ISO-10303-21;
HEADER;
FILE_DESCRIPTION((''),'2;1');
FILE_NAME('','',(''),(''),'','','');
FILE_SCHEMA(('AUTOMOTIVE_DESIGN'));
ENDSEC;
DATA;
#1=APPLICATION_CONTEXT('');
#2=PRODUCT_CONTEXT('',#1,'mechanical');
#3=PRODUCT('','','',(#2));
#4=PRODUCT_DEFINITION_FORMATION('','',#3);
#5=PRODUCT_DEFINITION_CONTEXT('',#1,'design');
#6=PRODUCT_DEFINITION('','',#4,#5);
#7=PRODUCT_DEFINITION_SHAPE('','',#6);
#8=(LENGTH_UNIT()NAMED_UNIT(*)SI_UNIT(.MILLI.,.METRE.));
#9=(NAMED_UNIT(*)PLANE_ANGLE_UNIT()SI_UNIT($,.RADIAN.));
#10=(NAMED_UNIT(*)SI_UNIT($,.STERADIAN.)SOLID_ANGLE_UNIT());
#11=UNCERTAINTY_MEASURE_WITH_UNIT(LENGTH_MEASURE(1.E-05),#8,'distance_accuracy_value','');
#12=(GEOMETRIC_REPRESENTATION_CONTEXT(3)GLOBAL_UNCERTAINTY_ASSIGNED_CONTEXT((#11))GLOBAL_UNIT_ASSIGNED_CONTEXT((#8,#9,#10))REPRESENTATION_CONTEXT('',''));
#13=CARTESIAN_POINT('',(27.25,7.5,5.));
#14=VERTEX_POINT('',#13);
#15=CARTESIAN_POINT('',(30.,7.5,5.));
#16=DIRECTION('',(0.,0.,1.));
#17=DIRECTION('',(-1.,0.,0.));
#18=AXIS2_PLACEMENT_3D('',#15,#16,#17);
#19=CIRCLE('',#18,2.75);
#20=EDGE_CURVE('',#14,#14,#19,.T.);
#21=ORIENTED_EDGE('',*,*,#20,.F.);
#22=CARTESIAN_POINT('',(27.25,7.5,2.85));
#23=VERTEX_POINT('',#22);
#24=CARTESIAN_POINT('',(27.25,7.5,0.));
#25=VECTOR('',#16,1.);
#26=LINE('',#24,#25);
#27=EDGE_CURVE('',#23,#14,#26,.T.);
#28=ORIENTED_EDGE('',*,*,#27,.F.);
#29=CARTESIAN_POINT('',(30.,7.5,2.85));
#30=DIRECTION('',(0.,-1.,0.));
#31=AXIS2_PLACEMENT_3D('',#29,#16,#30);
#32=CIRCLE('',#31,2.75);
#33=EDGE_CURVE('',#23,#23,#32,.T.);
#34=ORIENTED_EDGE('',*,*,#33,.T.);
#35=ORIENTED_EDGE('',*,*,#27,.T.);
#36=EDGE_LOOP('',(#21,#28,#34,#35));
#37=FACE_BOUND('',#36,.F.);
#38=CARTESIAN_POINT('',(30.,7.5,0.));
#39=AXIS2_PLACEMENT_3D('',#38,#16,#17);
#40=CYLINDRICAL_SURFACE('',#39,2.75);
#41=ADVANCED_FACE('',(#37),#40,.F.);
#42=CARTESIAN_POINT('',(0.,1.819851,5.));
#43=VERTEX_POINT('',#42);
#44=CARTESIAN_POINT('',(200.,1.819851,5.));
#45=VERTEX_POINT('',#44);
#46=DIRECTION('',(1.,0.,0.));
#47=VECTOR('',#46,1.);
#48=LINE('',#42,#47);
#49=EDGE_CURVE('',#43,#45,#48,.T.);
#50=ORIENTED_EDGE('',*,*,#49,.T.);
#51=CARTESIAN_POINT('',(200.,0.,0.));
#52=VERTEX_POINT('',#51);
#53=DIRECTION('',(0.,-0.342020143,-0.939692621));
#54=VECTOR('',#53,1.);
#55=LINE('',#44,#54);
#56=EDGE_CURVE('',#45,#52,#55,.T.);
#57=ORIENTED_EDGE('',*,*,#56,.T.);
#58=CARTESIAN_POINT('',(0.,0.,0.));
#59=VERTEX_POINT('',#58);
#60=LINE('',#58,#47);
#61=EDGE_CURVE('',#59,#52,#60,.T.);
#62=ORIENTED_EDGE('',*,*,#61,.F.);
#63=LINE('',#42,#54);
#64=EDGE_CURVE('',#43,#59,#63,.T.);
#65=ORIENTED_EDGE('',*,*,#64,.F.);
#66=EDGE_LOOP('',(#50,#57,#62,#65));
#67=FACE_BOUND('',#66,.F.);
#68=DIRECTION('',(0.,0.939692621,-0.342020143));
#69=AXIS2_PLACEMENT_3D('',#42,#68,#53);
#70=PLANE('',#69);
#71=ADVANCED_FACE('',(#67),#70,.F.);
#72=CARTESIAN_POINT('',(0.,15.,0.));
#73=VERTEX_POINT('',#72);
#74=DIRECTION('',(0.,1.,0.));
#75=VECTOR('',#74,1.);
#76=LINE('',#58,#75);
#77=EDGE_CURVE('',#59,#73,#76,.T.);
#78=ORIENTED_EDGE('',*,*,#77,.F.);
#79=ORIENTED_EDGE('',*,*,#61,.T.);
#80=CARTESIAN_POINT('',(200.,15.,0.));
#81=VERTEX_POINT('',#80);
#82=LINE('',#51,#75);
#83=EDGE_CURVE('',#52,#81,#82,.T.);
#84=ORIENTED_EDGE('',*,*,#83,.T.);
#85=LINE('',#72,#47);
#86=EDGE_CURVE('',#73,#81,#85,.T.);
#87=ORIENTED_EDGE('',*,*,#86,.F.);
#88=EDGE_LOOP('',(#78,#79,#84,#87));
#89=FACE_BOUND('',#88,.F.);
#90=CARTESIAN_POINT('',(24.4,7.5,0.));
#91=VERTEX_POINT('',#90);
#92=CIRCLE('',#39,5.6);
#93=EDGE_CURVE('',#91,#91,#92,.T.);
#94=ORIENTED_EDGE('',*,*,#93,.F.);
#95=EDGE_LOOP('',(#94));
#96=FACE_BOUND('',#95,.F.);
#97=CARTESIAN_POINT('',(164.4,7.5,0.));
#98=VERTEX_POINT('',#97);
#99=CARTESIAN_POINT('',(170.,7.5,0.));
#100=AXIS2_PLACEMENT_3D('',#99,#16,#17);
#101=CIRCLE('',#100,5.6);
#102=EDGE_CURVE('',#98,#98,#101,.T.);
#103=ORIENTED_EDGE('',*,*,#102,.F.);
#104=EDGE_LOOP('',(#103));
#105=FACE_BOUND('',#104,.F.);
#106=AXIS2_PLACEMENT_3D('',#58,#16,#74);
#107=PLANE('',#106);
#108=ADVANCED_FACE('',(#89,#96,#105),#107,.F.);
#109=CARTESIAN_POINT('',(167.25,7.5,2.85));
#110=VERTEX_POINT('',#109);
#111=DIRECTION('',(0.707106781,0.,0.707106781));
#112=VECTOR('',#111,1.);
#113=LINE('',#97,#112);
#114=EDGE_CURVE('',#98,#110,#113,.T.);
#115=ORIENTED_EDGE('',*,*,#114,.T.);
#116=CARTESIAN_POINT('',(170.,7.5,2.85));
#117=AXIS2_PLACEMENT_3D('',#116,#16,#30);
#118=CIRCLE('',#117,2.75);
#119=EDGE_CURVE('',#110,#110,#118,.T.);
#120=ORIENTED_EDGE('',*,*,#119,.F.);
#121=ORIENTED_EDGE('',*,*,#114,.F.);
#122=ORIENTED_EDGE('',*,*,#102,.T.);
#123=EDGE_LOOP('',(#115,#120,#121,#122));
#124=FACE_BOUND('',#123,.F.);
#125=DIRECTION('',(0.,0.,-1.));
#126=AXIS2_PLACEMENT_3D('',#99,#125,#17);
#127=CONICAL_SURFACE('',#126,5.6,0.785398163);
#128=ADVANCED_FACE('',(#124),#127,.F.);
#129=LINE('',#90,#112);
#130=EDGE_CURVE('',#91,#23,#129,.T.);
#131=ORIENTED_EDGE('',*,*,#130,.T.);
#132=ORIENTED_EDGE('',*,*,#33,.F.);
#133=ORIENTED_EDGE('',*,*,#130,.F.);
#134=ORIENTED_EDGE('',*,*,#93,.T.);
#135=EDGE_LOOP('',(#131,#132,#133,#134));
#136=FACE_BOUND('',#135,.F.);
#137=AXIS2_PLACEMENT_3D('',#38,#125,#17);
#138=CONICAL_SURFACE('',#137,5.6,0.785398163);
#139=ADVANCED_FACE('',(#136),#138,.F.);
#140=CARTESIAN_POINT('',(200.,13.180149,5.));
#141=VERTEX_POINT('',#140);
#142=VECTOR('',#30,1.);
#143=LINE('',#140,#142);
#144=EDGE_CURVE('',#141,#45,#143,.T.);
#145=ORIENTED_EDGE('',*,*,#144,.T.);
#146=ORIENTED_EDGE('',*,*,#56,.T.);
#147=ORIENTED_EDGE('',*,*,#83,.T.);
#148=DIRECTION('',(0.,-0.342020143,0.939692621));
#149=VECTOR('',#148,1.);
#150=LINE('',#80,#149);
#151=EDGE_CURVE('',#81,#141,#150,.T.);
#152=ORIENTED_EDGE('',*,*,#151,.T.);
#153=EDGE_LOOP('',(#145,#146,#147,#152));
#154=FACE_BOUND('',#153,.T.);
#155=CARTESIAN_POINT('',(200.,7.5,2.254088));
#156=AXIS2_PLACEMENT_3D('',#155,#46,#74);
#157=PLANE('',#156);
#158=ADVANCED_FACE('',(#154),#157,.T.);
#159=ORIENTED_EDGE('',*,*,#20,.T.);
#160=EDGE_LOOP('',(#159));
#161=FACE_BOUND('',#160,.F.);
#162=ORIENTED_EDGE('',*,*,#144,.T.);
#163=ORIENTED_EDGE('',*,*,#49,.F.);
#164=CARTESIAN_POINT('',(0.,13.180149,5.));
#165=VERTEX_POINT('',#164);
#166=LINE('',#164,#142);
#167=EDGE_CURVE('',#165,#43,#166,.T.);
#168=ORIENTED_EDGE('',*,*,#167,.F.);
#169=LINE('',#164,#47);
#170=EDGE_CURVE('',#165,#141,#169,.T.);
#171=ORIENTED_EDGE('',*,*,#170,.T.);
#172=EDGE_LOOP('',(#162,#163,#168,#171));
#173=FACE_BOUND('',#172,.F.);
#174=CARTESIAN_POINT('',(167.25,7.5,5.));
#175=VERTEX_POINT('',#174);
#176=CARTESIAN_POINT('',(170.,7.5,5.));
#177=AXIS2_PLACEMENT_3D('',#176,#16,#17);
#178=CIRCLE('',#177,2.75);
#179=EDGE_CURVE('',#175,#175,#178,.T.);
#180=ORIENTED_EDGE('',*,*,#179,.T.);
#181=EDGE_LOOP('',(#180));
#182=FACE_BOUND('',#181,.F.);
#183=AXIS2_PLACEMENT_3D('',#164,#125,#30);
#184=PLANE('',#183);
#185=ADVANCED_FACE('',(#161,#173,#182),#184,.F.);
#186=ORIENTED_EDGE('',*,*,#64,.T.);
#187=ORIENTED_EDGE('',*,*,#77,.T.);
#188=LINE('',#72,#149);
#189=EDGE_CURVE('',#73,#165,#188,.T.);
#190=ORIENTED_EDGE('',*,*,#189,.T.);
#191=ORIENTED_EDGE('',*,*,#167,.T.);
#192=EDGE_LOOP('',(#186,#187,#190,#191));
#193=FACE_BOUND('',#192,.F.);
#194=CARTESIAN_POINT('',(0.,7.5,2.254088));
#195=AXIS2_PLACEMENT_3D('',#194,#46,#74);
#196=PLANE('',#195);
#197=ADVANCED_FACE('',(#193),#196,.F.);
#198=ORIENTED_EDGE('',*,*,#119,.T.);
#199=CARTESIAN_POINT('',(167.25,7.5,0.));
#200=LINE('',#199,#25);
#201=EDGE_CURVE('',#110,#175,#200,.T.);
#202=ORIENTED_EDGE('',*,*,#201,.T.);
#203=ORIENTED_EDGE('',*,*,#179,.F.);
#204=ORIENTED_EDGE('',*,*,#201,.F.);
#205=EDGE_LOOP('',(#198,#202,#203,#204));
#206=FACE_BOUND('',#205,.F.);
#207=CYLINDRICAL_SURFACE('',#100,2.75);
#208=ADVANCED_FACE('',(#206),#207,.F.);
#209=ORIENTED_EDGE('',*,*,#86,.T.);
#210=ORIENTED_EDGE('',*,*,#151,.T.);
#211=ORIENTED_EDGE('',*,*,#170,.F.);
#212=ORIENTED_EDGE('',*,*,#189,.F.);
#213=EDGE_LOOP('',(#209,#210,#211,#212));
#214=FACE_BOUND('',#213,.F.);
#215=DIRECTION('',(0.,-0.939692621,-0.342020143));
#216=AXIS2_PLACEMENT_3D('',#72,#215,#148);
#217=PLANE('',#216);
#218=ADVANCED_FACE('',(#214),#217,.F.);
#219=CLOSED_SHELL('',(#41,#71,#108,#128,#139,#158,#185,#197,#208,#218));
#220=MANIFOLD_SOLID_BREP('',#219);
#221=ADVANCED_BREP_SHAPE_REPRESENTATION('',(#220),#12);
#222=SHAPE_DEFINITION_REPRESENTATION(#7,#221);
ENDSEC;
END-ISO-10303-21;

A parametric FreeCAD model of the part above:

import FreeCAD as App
import Part
import Sketcher
from FreeCAD import Vector
Q = App.Units.Quantity


def add_polygon(sketch, points):
    """Adds a closed chain of lines whose ends are joined by coincident constraints."""
    first, n = sketch.GeometryCount, len(points)
    for a, b in zip(points, points[1:] + points[:1]):
        sketch.addGeometry(Part.LineSegment(App.Vector(*a, 0), App.Vector(*b, 0)), False)
    for i in range(n):
        sketch.addConstraint(Sketcher.Constraint("Coincident", first + i, 2, first + (i + 1) % n, 1))

doc = App.newDocument("Part")
body = doc.addObject("PartDesign::Body", "Body")

# Sketch on YZ plane
sketch1 = body.newObject("Sketcher::SketchObject", "Sketch")
sketch1.AttachmentSupport = (doc.getObject("YZ_Plane"), [""])
sketch1.MapMode = "FlatFace"
add_polygon(sketch1, [(1.819851, 5), (0, 0), (15, 0), (13.180149, 5)])  # lines 0-3
sketch1.addConstraint([
    Sketcher.Constraint("Horizontal", 1),
    Sketcher.Constraint("Horizontal", 3),
    Sketcher.Constraint("Coincident", 0, 2, -1, 1),
    Sketcher.Constraint("Equal", 0, 2),
    Sketcher.Constraint("DistanceX", 1, 1, 1, 2, 15.0),
    Sketcher.Constraint("Angle", 0, Q("-110 deg")),
    Sketcher.Constraint("DistanceY", -1, 1, 2, 2, 5.0),
])
pad1 = body.newObject("PartDesign::Pad", "Pad")
pad1.Profile = sketch1
pad1.Length = 200

# Sketch on XY plane
sketch2 = body.newObject("Sketcher::SketchObject", "Sketch001")
sketch2.AttachmentSupport = (doc.getObject("XY_Plane"), [""])
sketch2.MapMode = "FlatFace"
sketch2.addGeometry([
    Part.Circle(Vector(30, 7.5, 0), Vector(0, 0, 1), 2.75),
    Part.Circle(Vector(170, 7.5, 0), Vector(0, 0, 1), 2.75),
], False)
sketch2.addConstraint([
    Sketcher.Constraint("Equal", 0, 1),
    Sketcher.Constraint("Horizontal", 0, 3, 1, 3),
    Sketcher.Constraint("Diameter", 0, 5.5),
    Sketcher.Constraint("DistanceX", -1, 1, 0, 3, 30.0),
    Sketcher.Constraint("DistanceX", -1, 1, 1, 3, 170.0),
    Sketcher.Constraint("DistanceY", -1, 1, 0, 3, 7.5),
])
doc.recompute()
hole = body.newObject("PartDesign::Hole", "Hole")
hole.Profile = sketch2
hole.ThreadType = "None"
hole.Diameter = 5.5
hole.DepthType = "ThroughAll"
hole.HoleCutType = "Countersink"
hole.HoleCutDiameter = 11.2
hole.HoleCutCountersinkAngle = 90
hole.Reversed = True

doc.recompute()
